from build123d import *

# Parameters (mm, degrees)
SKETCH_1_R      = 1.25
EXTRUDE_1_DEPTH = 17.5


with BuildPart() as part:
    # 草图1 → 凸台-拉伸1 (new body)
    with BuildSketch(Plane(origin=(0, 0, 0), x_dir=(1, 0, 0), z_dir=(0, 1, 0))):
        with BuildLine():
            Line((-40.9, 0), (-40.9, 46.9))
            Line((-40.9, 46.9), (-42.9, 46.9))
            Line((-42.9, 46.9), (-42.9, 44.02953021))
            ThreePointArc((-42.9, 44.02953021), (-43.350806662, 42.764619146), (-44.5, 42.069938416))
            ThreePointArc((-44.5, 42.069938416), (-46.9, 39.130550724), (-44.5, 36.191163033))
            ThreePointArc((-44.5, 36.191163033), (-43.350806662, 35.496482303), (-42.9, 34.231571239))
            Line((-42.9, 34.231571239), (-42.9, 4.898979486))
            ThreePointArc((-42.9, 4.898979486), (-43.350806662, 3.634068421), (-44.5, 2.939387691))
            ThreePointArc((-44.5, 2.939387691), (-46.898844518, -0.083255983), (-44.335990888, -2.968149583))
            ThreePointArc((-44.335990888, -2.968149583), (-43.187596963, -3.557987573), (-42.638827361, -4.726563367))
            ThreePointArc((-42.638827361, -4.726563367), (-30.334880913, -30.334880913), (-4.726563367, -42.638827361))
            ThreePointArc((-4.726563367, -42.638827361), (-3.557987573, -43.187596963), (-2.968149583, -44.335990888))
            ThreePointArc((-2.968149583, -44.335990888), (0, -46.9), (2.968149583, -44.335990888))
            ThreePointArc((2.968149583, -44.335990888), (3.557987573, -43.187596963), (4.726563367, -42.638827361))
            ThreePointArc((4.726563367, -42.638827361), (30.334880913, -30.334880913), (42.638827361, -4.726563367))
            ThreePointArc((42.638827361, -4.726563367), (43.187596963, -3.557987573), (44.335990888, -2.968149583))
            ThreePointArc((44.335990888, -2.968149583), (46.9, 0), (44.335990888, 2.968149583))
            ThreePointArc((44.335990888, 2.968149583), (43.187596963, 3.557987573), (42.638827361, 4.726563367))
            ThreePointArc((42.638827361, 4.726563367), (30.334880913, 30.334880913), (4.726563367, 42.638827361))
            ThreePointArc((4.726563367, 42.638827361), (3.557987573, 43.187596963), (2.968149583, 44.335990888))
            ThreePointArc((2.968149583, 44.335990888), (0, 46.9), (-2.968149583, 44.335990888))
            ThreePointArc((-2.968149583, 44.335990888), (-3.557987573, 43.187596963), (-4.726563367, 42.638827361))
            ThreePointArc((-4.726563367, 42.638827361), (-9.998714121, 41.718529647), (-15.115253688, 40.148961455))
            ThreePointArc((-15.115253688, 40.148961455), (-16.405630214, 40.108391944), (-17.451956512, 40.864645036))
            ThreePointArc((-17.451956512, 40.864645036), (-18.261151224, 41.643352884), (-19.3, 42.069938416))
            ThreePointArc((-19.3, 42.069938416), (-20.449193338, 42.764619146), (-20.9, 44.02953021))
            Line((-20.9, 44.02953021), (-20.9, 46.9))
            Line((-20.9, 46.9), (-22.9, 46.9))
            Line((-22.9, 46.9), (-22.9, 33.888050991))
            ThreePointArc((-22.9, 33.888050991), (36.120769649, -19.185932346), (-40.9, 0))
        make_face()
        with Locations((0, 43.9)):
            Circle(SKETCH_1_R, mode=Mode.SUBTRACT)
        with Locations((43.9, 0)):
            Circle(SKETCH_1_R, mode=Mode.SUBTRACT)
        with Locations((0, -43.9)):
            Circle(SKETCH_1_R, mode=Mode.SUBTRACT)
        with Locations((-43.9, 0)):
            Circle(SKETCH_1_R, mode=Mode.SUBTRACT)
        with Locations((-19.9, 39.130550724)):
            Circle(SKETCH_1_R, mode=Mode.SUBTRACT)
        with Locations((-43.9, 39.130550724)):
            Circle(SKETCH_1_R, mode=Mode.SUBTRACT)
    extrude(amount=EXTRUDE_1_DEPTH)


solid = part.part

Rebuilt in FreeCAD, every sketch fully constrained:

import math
import FreeCAD as App
import Part
import Sketcher
from FreeCAD import Vector

doc = App.newDocument("Part")
body = doc.addObject("PartDesign::Body", "Body")

# Sketch on XZ plane
sketch1 = body.newObject("Sketcher::SketchObject", "Sketch")
sketch1.AttachmentSupport = (doc.getObject("XZ_Plane"), [""])
sketch1.MapMode = "FlatFace"
sketch1.addGeometry([
    Part.LineSegment(Vector(-40.9, 0, 0), Vector(-40.9, -46.9, 0)),  # 0
    Part.LineSegment(Vector(-40.9, -46.9, 0), Vector(-42.9, -46.9, 0)),  # 1
    Part.LineSegment(Vector(-42.9, -46.9, 0), Vector(-42.9, -44.02953, 0)),  # 2
    Part.ArcOfCircle(Part.Circle(Vector(-44.9, -44.02953, 0), Vector(0, 0, 1), 2), math.radians(0), math.radians(78.463041)),  # 3
    Part.ArcOfCircle(Part.Circle(Vector(-43.9, -39.130551, 0), Vector(0, 0, 1), 3), math.radians(101.536959), math.radians(258.463041)),  # 4
    Part.ArcOfCircle(Part.Circle(Vector(-44.9, -34.231571, 0), Vector(0, 0, 1), 2), math.radians(-78.463041), math.radians(0)),  # 5
    Part.LineSegment(Vector(-42.9, -34.231571, 0), Vector(-42.9, -4.898979, 0)),  # 6
    Part.ArcOfCircle(Part.Circle(Vector(-44.9, -4.898979, 0), Vector(0, 0, 1), 2), math.radians(0), math.radians(78.463041)),  # 7
    Part.ArcOfCircle(Part.Circle(Vector(-43.9, 0, 0), Vector(0, 0, 1), 3), math.radians(98.356406), math.radians(258.463041)),  # 8
    Part.ArcOfCircle(Part.Circle(Vector(-44.626651, 4.946916, 0), Vector(0, 0, 1), 2), math.radians(-81.643594), math.radians(-6.325479)),  # 9
    Part.ArcOfCircle(Part.Circle(Vector(0, 0, 0), Vector(0, 0, 1), 42.9), math.radians(96.325479), math.radians(173.674521)),  # 10
    Part.ArcOfCircle(Part.Circle(Vector(-4.946916, 44.626651, 0), Vector(0, 0, 1), 2), math.radians(-83.674521), math.radians(-8.356406)),  # 11
    Part.ArcOfCircle(Part.Circle(Vector(0, 43.9, 0), Vector(0, 0, 1), 3), math.radians(8.356406), math.radians(171.643594)),  # 12
    Part.ArcOfCircle(Part.Circle(Vector(4.946916, 44.626651, 0), Vector(0, 0, 1), 2), math.radians(-171.643594), math.radians(-96.325479)),  # 13
    Part.ArcOfCircle(Part.Circle(Vector(0, 0, 0), Vector(0, 0, 1), 42.9), math.radians(6.325479), math.radians(83.674521)),  # 14
    Part.ArcOfCircle(Part.Circle(Vector(44.626651, 4.946916, 0), Vector(0, 0, 1), 2), math.radians(-173.674521), math.radians(-98.356406)),  # 15
    Part.ArcOfCircle(Part.Circle(Vector(43.9, 0, 0), Vector(0, 0, 1), 3), math.radians(-81.643594), math.radians(81.643594)),  # 16
    Part.ArcOfCircle(Part.Circle(Vector(44.626651, -4.946916, 0), Vector(0, 0, 1), 2), math.radians(98.356406), math.radians(173.674521)),  # 17
    Part.ArcOfCircle(Part.Circle(Vector(0, 0, 0), Vector(0, 0, 1), 42.9), math.radians(-83.674521), math.radians(-6.325479)),  # 18
    Part.ArcOfCircle(Part.Circle(Vector(4.946916, -44.626651, 0), Vector(0, 0, 1), 2), math.radians(96.325479), math.radians(171.643594)),  # 19
    Part.ArcOfCircle(Part.Circle(Vector(0, -43.9, 0), Vector(0, 0, 1), 3), math.radians(-171.643594), math.radians(-8.356406)),  # 20
    Part.ArcOfCircle(Part.Circle(Vector(-4.946916, -44.626651, 0), Vector(0, 0, 1), 2), math.radians(8.356406), math.radians(83.674521)),  # 21
    Part.ArcOfCircle(Part.Circle(Vector(0, 0, 0), Vector(0, 0, 1), 42.9), math.radians(-110.630318), math.radians(-96.325479)),  # 22
    Part.ArcOfCircle(Part.Circle(Vector(-15.819928, -42.020708, 0), Vector(0, 0, 1), 2), math.radians(69.369682), math.radians(144.687797)),  # 23
    Part.ArcOfCircle(Part.Circle(Vector(-19.9, -39.130551, 0), Vector(0, 0, 1), 3), math.radians(-78.463041), math.radians(-35.312203)),  # 24
    Part.ArcOfCircle(Part.Circle(Vector(-18.9, -44.02953, 0), Vector(0, 0, 1), 2), math.radians(101.536959), math.radians(180)),  # 25
    Part.LineSegment(Vector(-20.9, -44.02953, 0), Vector(-20.9, -46.9, 0)),  # 26
    Part.LineSegment(Vector(-20.9, -46.9, 0), Vector(-22.9, -46.9, 0)),  # 27
    Part.LineSegment(Vector(-22.9, -46.9, 0), Vector(-22.9, -33.888051, 0)),  # 28
    Part.ArcOfCircle(Part.Circle(Vector(0, 0, 0), Vector(0, 0, 1), 40.9), math.radians(-124.049035), math.radians(180)),  # 29
    Part.Circle(Vector(0, 43.9, 0), Vector(0, 0, 1), 1.25),  # 30
    Part.Circle(Vector(-43.9, 0, 0), Vector(0, 0, 1), 1.25),  # 31
    Part.Circle(Vector(-43.9, -39.130551, 0), Vector(0, 0, 1), 1.25),  # 32
    Part.Circle(Vector(-19.9, -39.130551, 0), Vector(0, 0, 1), 1.25),  # 33
    Part.Circle(Vector(0, -43.9, 0), Vector(0, 0, 1), 1.25),  # 34
    Part.Circle(Vector(43.9, 0, 0), Vector(0, 0, 1), 1.25),  # 35
], False)
sketch1.addConstraint([
    Sketcher.Constraint("Coincident", 0, 2, 1, 1),
    Sketcher.Constraint("Coincident", 1, 2, 2, 1),
    Sketcher.Constraint("Tangent", 2, 2, 3, 1),
    Sketcher.Constraint("Tangent", 3, 2, 4, 2),
    Sketcher.Constraint("Tangent", 4, 1, 5, 1),
    Sketcher.Constraint("Tangent", 5, 2, 6, 1),
    Sketcher.Constraint("Tangent", 6, 2, 7, 1),
    Sketcher.Constraint("Tangent", 7, 2, 8, 2),
    Sketcher.Constraint("Tangent", 8, 1, 9, 1),
    Sketcher.Constraint("Tangent", 9, 2, 10, 2),
    Sketcher.Constraint("Tangent", 10, 1, 11, 1),
    Sketcher.Constraint("Tangent", 11, 2, 12, 2),
    Sketcher.Constraint("Tangent", 12, 1, 13, 1),
    Sketcher.Constraint("Tangent", 13, 2, 14, 2),
    Sketcher.Constraint("Tangent", 14, 1, 15, 1),
    Sketcher.Constraint("Tangent", 15, 2, 16, 2),
    Sketcher.Constraint("Tangent", 16, 1, 17, 1),
    Sketcher.Constraint("Tangent", 17, 2, 18, 2),
    Sketcher.Constraint("Tangent", 18, 1, 19, 1),
    Sketcher.Constraint("Tangent", 19, 2, 20, 2),
    Sketcher.Constraint("Tangent", 20, 1, 21, 1),
    Sketcher.Constraint("Tangent", 21, 2, 22, 2),
    Sketcher.Constraint("Tangent", 22, 1, 23, 1),
    Sketcher.Constraint("Tangent", 23, 2, 24, 2),
    Sketcher.Constraint("Tangent", 24, 1, 25, 1),
    Sketcher.Constraint("Tangent", 25, 2, 26, 1),
    Sketcher.Constraint("Coincident", 26, 2, 27, 1),
    Sketcher.Constraint("Coincident", 27, 2, 28, 1),
    Sketcher.Constraint("Coincident", 28, 2, 29, 1),
    Sketcher.Constraint("Tangent", 29, 2, 0, 1),
    Sketcher.Constraint("Vertical", 0),
    Sketcher.Constraint("Horizontal", 1),
    Sketcher.Constraint("Vertical", 2),
    Sketcher.Constraint("Vertical", 6),
    Sketcher.Constraint("Vertical", 26),
    Sketcher.Constraint("Horizontal", 27),
    Sketcher.Constraint("Vertical", 28),
    Sketcher.Constraint("Coincident", 10, 3, -1, 1),
    Sketcher.Constraint("Coincident", 14, 3, -1, 1),
    Sketcher.Constraint("Coincident", 18, 3, -1, 1),
    Sketcher.Constraint("Coincident", 22, 3, -1, 1),
    Sketcher.Constraint("Coincident", 29, 3, -1, 1),
    Sketcher.Constraint("Coincident", 30, 3, 12, 3),
    Sketcher.Constraint("Coincident", 31, 3, 8, 3),
    Sketcher.Constraint("Coincident", 32, 3, 4, 3),
    Sketcher.Constraint("Coincident", 33, 3, 24, 3),
    Sketcher.Constraint("Coincident", 34, 3, 20, 3),
    Sketcher.Constraint("Coincident", 35, 3, 16, 3),
    Sketcher.Constraint("Equal", 3, 5),
    Sketcher.Constraint("Equal", 5, 7),
    Sketcher.Constraint("Equal", 4, 8),
    Sketcher.Constraint("Equal", 7, 9),
    Sketcher.Constraint("Equal", 9, 11),
    Sketcher.Constraint("Equal", 8, 12),
    Sketcher.Constraint("Equal", 11, 13),
    Sketcher.Constraint("Equal", 10, 14),
    Sketcher.Constraint("Equal", 13, 15),
    Sketcher.Constraint("Equal", 12, 16),
    Sketcher.Constraint("Equal", 15, 17),
    Sketcher.Constraint("Equal", 14, 18),
    Sketcher.Constraint("Equal", 17, 19),
    Sketcher.Constraint("Equal", 16, 20),
    Sketcher.Constraint("Equal", 19, 21),
    Sketcher.Constraint("Equal", 18, 22),
    Sketcher.Constraint("Equal", 21, 23),
    Sketcher.Constraint("Equal", 20, 24),
    Sketcher.Constraint("Equal", 23, 25),
    Sketcher.Constraint("Equal", 30, 31),
    Sketcher.Constraint("Equal", 31, 32),
    Sketcher.Constraint("Equal", 32, 33),
    Sketcher.Constraint("Equal", 33, 34),
    Sketcher.Constraint("Equal", 34, 35),
    Sketcher.Constraint("Symmetric", 8, 3, 16, 3, -1, 1),
    Sketcher.Constraint("Symmetric", 12, 3, 20, 3, -1, 1),
    Sketcher.Constraint("PointOnObject", 8, 3, -1),
    Sketcher.Constraint("PointOnObject", 12, 3, -2),
    Sketcher.Constraint("Horizontal", 4, 3, 24, 3),
    Sketcher.Constraint("Horizontal", 3, 3, 25, 3),
    Sketcher.Constraint("Horizontal", 1, 2, 26, 2),
    Sketcher.Constraint("Vertical", 3, 3, 5, 3),
    Sketcher.Constraint("Vertical", 4, 3, 8, 3),
    Sketcher.Constraint("Equal", 1, 27),
    Sketcher.Constraint("Radius", 3, 2.0),
    Sketcher.Constraint("Radius", 4, 3.0),
    Sketcher.Constraint("Diameter", 30, 2.5),
    Sketcher.Constraint("Radius", 10, 42.9),
    Sketcher.Constraint("Radius", 29, 40.9),
    Sketcher.Constraint("DistanceX", 1, 2, 1, 1, 2.0),
    Sketcher.Constraint("DistanceY", 0, 2, 0, 1, 46.9),
    Sketcher.Constraint("DistanceX", 3, 3, 4, 3, 1.0),
    Sketcher.Constraint("DistanceX", 4, 3, 24, 3, 24.0),
    Sketcher.Constraint("DistanceY", -1, 1, 12, 3, 43.9),
    Sketcher.Constraint("DistanceY", 2, 1, 2, 2, 2.87047),
])
pad1 = body.newObject("PartDesign::Pad", "Pad")
pad1.Profile = sketch1
pad1.Length = 17.5
pad1.Reversed = True

doc.recompute()
